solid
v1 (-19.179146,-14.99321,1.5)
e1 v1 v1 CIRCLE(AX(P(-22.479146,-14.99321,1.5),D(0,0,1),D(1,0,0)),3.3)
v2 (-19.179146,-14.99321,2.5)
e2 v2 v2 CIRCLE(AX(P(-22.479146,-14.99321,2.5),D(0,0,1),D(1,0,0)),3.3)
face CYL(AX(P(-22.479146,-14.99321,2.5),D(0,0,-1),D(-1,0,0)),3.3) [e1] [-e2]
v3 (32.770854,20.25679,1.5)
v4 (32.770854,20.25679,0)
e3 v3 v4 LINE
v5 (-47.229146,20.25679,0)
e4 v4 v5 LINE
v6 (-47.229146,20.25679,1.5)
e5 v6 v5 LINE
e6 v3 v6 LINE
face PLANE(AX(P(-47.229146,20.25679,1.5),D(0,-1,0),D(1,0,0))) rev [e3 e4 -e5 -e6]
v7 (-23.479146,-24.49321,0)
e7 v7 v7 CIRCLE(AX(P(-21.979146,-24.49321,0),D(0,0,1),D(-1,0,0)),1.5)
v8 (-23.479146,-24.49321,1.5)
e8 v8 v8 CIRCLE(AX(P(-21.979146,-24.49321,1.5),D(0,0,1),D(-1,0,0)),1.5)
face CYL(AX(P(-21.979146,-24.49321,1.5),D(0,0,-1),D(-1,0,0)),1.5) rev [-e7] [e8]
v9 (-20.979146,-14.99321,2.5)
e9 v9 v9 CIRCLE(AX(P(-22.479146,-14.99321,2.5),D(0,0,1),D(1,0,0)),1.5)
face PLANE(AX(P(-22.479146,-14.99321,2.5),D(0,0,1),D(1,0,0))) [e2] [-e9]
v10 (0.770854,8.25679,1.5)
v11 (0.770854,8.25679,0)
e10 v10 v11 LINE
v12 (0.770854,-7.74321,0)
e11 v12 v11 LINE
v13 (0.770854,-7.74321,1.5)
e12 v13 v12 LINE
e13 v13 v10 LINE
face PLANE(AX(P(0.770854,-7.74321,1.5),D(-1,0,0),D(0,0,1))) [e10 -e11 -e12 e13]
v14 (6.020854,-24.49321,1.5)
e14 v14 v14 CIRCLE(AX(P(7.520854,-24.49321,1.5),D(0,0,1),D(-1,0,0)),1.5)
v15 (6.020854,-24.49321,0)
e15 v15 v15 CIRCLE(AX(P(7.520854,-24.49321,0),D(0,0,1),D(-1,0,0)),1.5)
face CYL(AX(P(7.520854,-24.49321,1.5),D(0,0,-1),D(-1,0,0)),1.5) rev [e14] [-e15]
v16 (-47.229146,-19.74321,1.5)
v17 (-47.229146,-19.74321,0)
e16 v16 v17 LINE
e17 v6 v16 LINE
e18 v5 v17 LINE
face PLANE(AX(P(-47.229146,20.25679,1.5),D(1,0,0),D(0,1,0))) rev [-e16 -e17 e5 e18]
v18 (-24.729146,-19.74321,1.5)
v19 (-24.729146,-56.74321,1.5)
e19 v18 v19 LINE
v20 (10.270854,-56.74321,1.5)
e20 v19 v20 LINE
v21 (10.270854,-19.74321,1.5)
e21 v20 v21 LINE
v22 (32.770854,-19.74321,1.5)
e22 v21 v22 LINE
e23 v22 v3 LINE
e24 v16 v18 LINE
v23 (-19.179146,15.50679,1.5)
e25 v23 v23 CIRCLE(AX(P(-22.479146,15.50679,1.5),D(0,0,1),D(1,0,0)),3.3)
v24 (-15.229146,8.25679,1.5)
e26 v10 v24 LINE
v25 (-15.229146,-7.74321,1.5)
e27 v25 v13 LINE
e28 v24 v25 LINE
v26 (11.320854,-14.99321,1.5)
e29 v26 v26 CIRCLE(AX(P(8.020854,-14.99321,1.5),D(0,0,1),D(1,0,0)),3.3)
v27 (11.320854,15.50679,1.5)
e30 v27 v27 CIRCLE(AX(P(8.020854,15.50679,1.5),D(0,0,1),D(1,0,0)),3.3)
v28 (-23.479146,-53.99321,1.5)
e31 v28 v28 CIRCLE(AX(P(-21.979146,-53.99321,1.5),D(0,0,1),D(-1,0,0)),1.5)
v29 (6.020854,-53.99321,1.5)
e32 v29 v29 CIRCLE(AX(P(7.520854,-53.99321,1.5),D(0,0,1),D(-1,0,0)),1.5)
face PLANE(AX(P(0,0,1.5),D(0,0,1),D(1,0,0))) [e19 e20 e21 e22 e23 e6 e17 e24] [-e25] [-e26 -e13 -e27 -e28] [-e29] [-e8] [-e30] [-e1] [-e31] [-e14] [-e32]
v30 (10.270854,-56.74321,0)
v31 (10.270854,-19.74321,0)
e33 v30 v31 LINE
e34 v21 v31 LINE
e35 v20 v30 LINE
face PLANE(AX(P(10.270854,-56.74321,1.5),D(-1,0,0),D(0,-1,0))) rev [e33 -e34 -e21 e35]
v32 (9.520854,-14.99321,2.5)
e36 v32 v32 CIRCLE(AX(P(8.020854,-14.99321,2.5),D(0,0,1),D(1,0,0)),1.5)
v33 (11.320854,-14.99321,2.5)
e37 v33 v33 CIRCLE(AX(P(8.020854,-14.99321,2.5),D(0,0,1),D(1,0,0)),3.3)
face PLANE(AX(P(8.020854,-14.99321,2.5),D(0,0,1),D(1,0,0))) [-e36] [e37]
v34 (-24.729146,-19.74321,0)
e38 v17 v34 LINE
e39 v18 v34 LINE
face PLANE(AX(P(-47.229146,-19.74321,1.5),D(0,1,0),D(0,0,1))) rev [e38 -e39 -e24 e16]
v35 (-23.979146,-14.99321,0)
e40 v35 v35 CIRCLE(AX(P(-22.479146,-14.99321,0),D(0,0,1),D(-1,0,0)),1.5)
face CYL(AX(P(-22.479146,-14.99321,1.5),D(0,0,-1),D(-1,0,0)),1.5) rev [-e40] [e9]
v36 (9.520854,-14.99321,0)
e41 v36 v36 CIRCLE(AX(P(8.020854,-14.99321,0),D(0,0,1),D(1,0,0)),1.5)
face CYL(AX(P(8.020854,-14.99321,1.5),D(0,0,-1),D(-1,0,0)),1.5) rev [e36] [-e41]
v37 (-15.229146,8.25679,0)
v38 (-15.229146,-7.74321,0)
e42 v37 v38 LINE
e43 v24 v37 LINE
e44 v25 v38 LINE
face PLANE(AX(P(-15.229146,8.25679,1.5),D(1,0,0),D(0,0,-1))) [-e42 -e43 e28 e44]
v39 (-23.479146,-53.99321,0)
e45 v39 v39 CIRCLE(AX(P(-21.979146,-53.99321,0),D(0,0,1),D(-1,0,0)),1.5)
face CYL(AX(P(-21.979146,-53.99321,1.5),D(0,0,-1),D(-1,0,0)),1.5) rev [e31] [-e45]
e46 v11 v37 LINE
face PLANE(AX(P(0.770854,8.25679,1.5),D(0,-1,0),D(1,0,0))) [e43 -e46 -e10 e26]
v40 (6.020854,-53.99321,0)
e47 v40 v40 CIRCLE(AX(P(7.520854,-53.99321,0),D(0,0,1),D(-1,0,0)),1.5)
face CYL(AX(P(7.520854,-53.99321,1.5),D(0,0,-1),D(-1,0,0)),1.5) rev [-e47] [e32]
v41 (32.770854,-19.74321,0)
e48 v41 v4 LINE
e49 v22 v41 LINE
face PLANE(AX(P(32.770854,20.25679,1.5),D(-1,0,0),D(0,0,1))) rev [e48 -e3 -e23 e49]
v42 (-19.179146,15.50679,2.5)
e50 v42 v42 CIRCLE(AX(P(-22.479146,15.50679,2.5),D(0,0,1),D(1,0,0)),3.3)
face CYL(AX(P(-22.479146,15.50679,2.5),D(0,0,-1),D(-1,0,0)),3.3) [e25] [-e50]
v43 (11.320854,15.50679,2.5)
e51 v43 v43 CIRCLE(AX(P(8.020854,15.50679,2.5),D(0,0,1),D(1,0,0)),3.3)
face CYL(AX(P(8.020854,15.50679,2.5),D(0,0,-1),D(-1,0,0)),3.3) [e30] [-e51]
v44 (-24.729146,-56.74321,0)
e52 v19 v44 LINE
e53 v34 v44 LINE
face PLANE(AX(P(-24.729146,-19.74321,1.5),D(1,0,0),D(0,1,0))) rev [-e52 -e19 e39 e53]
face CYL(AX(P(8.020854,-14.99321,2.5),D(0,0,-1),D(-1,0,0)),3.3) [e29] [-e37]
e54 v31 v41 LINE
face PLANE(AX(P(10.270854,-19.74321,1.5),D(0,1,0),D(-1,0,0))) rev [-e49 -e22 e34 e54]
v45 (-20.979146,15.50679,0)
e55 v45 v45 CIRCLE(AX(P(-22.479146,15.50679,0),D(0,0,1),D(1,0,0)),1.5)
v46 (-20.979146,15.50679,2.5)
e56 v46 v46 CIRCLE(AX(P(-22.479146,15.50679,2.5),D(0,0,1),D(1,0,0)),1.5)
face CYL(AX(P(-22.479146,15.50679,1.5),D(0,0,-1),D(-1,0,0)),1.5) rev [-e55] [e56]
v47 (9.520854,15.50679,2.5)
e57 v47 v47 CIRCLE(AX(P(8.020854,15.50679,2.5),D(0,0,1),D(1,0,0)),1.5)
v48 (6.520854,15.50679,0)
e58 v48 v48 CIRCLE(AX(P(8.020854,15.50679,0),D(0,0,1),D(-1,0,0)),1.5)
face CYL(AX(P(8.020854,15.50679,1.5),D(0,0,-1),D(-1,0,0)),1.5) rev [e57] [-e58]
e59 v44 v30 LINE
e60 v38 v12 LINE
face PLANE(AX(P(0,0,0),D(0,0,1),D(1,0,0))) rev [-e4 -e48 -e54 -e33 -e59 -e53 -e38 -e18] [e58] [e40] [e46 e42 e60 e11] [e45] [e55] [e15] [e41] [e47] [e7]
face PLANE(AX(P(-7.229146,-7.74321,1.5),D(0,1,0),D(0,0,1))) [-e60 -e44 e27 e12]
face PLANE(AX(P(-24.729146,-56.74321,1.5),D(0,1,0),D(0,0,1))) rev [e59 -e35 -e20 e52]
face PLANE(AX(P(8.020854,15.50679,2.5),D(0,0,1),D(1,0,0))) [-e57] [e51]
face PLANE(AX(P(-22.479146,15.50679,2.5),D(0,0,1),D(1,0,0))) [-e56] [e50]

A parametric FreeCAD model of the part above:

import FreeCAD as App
import Part
import Sketcher
Q = App.Units.Quantity

doc = App.newDocument("Part")
body = doc.addObject("PartDesign::Body", "Body")

# Sketch on XY plane
sketch1 = body.newObject("Sketcher::SketchObject", "Sketch")
sketch1.AttachmentSupport = (doc.getObject("XY_Plane"), [""])
sketch1.MapMode = "FlatFace"
sketch1.addGeometry(Part.LineSegment(App.Vector(32.8, 20.3, 0), App.Vector(-47.2, 20.3, 0)), False)
sketch1.addGeometry(Part.LineSegment(App.Vector(-47.2, 20.3, 0), App.Vector(-47.2, -19.7, 0)), False)
sketch1.addGeometry(Part.LineSegment(App.Vector(-47.2, -19.7, 0), App.Vector(-24.7, -19.7, 0)), False)
sketch1.addGeometry(Part.LineSegment(App.Vector(-24.7, -19.7, 0), App.Vector(-24.7, -56.7, 0)), False)
sketch1.addGeometry(Part.LineSegment(App.Vector(-24.7, -56.7, 0), App.Vector(10.3, -56.7, 0)), False)
sketch1.addGeometry(Part.LineSegment(App.Vector(10.3, -56.7, 0), App.Vector(10.3, -19.7, 0)), False)
sketch1.addGeometry(Part.LineSegment(App.Vector(10.3, -19.7, 0), App.Vector(32.8, -19.7, 0)), False)
sketch1.addGeometry(Part.LineSegment(App.Vector(32.8, -19.7, 0), App.Vector(32.8, 20.3, 0)), False)
sketch1.addGeometry(Part.Circle(App.Vector(7.5, -54, 0), App.Vector(0, 0, 1), 1.5), False)
sketch1.addGeometry(Part.Circle(App.Vector(7.5, -24.5, 0), App.Vector(0, 0, 1), 1.5), False)
sketch1.addGeometry(Part.Circle(App.Vector(-22, -54, 0), App.Vector(0, 0, 1), 1.5), False)
sketch1.addGeometry(Part.Circle(App.Vector(-22, -24.5, 0), App.Vector(0, 0, 1), 1.5), False)
sketch1.addGeometry(Part.Circle(App.Vector(8, -15, 0), App.Vector(0, 0, 1), 1.5), False)
sketch1.addGeometry(Part.Circle(App.Vector(8, 15.5, 0), App.Vector(0, 0, 1), 1.5), False)
sketch1.addGeometry(Part.Circle(App.Vector(-22.5, -15, 0), App.Vector(0, 0, 1), 1.5), False)
sketch1.addGeometry(Part.LineSegment(App.Vector(-15.2, -7.7, 0), App.Vector(-15.2, 8.3, 0)), False)
sketch1.addGeometry(Part.LineSegment(App.Vector(-15.2, 8.3, 0), App.Vector(0.8, 8.3, 0)), False)
sketch1.addGeometry(Part.LineSegment(App.Vector(0.8, 8.3, 0), App.Vector(0.8, -7.7, 0)), False)
sketch1.addGeometry(Part.LineSegment(App.Vector(0.8, -7.7, 0), App.Vector(-15.2, -7.7, 0)), False)
sketch1.addGeometry(Part.Circle(App.Vector(-22.5, 15.5, 0), App.Vector(0, 0, 1), 1.5), False)
sketch1.addConstraint(Sketcher.Constraint("Coincident", 0, 2, 1, 1))
sketch1.addConstraint(Sketcher.Constraint("Coincident", 1, 2, 2, 1))
sketch1.addConstraint(Sketcher.Constraint("Coincident", 2, 2, 3, 1))
sketch1.addConstraint(Sketcher.Constraint("Coincident", 3, 2, 4, 1))
sketch1.addConstraint(Sketcher.Constraint("Coincident", 4, 2, 5, 1))
sketch1.addConstraint(Sketcher.Constraint("Coincident", 5, 2, 6, 1))
sketch1.addConstraint(Sketcher.Constraint("Coincident", 6, 2, 7, 1))
sketch1.addConstraint(Sketcher.Constraint("Coincident", 7, 2, 0, 1))
sketch1.addConstraint(Sketcher.Constraint("Coincident", 15, 2, 16, 1))
sketch1.addConstraint(Sketcher.Constraint("Coincident", 16, 2, 17, 1))
sketch1.addConstraint(Sketcher.Constraint("Coincident", 17, 2, 18, 1))
sketch1.addConstraint(Sketcher.Constraint("Coincident", 18, 2, 15, 1))
sketch1.addConstraint(Sketcher.Constraint("Horizontal", 0))
sketch1.addConstraint(Sketcher.Constraint("Vertical", 1))
sketch1.addConstraint(Sketcher.Constraint("Horizontal", 2))
sketch1.addConstraint(Sketcher.Constraint("Vertical", 3))
sketch1.addConstraint(Sketcher.Constraint("Horizontal", 4))
sketch1.addConstraint(Sketcher.Constraint("Vertical", 5))
sketch1.addConstraint(Sketcher.Constraint("Horizontal", 6))
sketch1.addConstraint(Sketcher.Constraint("Vertical", 7))
sketch1.addConstraint(Sketcher.Constraint("Vertical", 15))
sketch1.addConstraint(Sketcher.Constraint("Horizontal", 16))
sketch1.addConstraint(Sketcher.Constraint("Vertical", 17))
sketch1.addConstraint(Sketcher.Constraint("Horizontal", 18))
sketch1.addConstraint(Sketcher.Constraint("Equal", 8, 9))
sketch1.addConstraint(Sketcher.Constraint("Equal", 9, 10))
sketch1.addConstraint(Sketcher.Constraint("Equal", 10, 11))
sketch1.addConstraint(Sketcher.Constraint("Equal", 11, 12))
sketch1.addConstraint(Sketcher.Constraint("Equal", 12, 13))
sketch1.addConstraint(Sketcher.Constraint("Equal", 13, 14))
sketch1.addConstraint(Sketcher.Constraint("Equal", 14, 19))
sketch1.addConstraint(Sketcher.Constraint("Horizontal", 8, 3, 10, 3))
sketch1.addConstraint(Sketcher.Constraint("Horizontal", 9, 3, 11, 3))
sketch1.addConstraint(Sketcher.Constraint("Horizontal", 12, 3, 14, 3))
sketch1.addConstraint(Sketcher.Constraint("Horizontal", 13, 3, 19, 3))
sketch1.addConstraint(Sketcher.Constraint("Horizontal", 2, 2, 5, 2))
sketch1.addConstraint(Sketcher.Constraint("Vertical", 8, 3, 9, 3))
sketch1.addConstraint(Sketcher.Constraint("Vertical", 10, 3, 11, 3))
sketch1.addConstraint(Sketcher.Constraint("Vertical", 12, 3, 13, 3))
sketch1.addConstraint(Sketcher.Constraint("Vertical", 14, 3, 19, 3))
sketch1.addConstraint(Sketcher.Constraint("Equal", 2, 6))
sketch1.addConstraint(Sketcher.Constraint("Equal", 18, 15))
sketch1.addConstraint(Sketcher.Constraint("Diameter", 8, Q("3 mm")))
sketch1.addConstraint(Sketcher.Constraint("DistanceX", 0, 2, 0, 1, Q("80 mm")))
sketch1.addConstraint(Sketcher.Constraint("DistanceX", 4, 1, 4, 2, Q("35 mm")))
sketch1.addConstraint(Sketcher.Constraint("DistanceX", 16, 1, 16, 2, Q("16 mm")))
sketch1.addConstraint(Sketcher.Constraint("DistanceY", 1, 2, 1, 1, Q("40 mm")))
sketch1.addConstraint(Sketcher.Constraint("DistanceY", 3, 2, 3, 1, Q("37 mm")))
sketch1.addConstraint(Sketcher.Constraint("DistanceX", 11, 3, 12, 3, Q("30 mm")))
sketch1.addConstraint(Sketcher.Constraint("DistanceY", 8, 3, 12, 3, Q("39 mm")))
sketch1.addConstraint(Sketcher.Constraint("DistanceY", 9, 3, 13, 3, Q("40 mm")))
sketch1.addConstraint(Sketcher.Constraint("DistanceX", 14, 3, 9, 3, Q("30 mm")))
sketch1.addConstraint(Sketcher.Constraint("DistanceY", 2, 2, 15, 2, Q("28 mm")))
sketch1.addConstraint(Sketcher.Constraint("DistanceY", 8, 3, 9, 3, Q("29.5 mm")))
sketch1.addConstraint(Sketcher.Constraint("DistanceX", 10, 3, 8, 3, Q("29.5 mm")))
sketch1.addConstraint(Sketcher.Constraint("DistanceX", 2, 2, 15, 2, Q("9.5 mm")))
sketch1.addConstraint(Sketcher.Constraint("DistanceX", 0, 2, 19, 3, Q("24.75 mm")))
sketch1.addConstraint(Sketcher.Constraint("DistanceY", 19, 3, 0, 2, Q("4.75 mm")))
sketch1.addConstraint(Sketcher.Constraint("DistanceY", 8, 3, -1, 1, Q("53.99321 mm")))
sketch1.addConstraint(Sketcher.Constraint("DistanceX", -1, 1, 8, 3, Q("7.520854 mm")))
pad1 = body.newObject("PartDesign::Pad", "Pad")
pad1.Profile = sketch1
pad1.Length = 1.5

# Sketch on XY plane
sketch2 = body.newObject("Sketcher::SketchObject", "Sketch001")
sketch2.AttachmentSupport = (doc.getObject("XY_Plane"), [""])
sketch2.MapMode = "FlatFace"
sketch2.AttachmentOffset = App.Placement(App.Vector(0, 0, 1.5), App.Rotation())
sketch2.addGeometry(Part.Circle(App.Vector(-22.5, 15.5, 0), App.Vector(0, 0, 1), 3.3), False)
sketch2.addGeometry(Part.Circle(App.Vector(-22.5, 15.5, 0), App.Vector(0, 0, 1), 1.5), False)
sketch2.addGeometry(Part.Circle(App.Vector(8, 15.5, 0), App.Vector(0, 0, 1), 3.3), False)
sketch2.addGeometry(Part.Circle(App.Vector(8, 15.5, 0), App.Vector(0, 0, 1), 1.5), False)
sketch2.addGeometry(Part.Circle(App.Vector(-22.5, -15, 0), App.Vector(0, 0, 1), 3.3), False)
sketch2.addGeometry(Part.Circle(App.Vector(-22.5, -15, 0), App.Vector(0, 0, 1), 1.5), False)
sketch2.addGeometry(Part.Circle(App.Vector(8, -15, 0), App.Vector(0, 0, 1), 3.3), False)
sketch2.addGeometry(Part.Circle(App.Vector(8, -15, 0), App.Vector(0, 0, 1), 1.5), False)
sketch2.addConstraint(Sketcher.Constraint("Coincident", 1, 3, 0, 3))
sketch2.addConstraint(Sketcher.Constraint("Coincident", 3, 3, 2, 3))
sketch2.addConstraint(Sketcher.Constraint("Coincident", 5, 3, 4, 3))
sketch2.addConstraint(Sketcher.Constraint("Coincident", 7, 3, 6, 3))
sketch2.addConstraint(Sketcher.Constraint("Equal", 0, 2))
sketch2.addConstraint(Sketcher.Constraint("Equal", 1, 3))
sketch2.addConstraint(Sketcher.Constraint("Equal", 2, 4))
sketch2.addConstraint(Sketcher.Constraint("Equal", 3, 5))
sketch2.addConstraint(Sketcher.Constraint("Equal", 4, 6))
sketch2.addConstraint(Sketcher.Constraint("Equal", 5, 7))
sketch2.addConstraint(Sketcher.Constraint("Horizontal", 1, 3, 2, 3))
sketch2.addConstraint(Sketcher.Constraint("Horizontal", 5, 3, 6, 3))
sketch2.addConstraint(Sketcher.Constraint("Vertical", 1, 3, 4, 3))
sketch2.addConstraint(Sketcher.Constraint("Vertical", 3, 3, 6, 3))
sketch2.addConstraint(Sketcher.Constraint("Diameter", 1, Q("3 mm")))
sketch2.addConstraint(Sketcher.Constraint("Diameter", 0, Q("6.6 mm")))
sketch2.addConstraint(Sketcher.Constraint("DistanceX", 0, 3, 2, 3, Q("30.5 mm")))
sketch2.addConstraint(Sketcher.Constraint("DistanceY", 4, 3, 0, 3, Q("30.5 mm")))
sketch2.addConstraint(Sketcher.Constraint("DistanceY", -1, 1, 0, 3, Q("15.50679 mm")))
sketch2.addConstraint(Sketcher.Constraint("DistanceX", 0, 3, -1, 1, Q("22.479146 mm")))
pad2 = body.newObject("PartDesign::Pad", "Pad001")
pad2.Profile = sketch2
pad2.Length = 1

doc.recompute()
